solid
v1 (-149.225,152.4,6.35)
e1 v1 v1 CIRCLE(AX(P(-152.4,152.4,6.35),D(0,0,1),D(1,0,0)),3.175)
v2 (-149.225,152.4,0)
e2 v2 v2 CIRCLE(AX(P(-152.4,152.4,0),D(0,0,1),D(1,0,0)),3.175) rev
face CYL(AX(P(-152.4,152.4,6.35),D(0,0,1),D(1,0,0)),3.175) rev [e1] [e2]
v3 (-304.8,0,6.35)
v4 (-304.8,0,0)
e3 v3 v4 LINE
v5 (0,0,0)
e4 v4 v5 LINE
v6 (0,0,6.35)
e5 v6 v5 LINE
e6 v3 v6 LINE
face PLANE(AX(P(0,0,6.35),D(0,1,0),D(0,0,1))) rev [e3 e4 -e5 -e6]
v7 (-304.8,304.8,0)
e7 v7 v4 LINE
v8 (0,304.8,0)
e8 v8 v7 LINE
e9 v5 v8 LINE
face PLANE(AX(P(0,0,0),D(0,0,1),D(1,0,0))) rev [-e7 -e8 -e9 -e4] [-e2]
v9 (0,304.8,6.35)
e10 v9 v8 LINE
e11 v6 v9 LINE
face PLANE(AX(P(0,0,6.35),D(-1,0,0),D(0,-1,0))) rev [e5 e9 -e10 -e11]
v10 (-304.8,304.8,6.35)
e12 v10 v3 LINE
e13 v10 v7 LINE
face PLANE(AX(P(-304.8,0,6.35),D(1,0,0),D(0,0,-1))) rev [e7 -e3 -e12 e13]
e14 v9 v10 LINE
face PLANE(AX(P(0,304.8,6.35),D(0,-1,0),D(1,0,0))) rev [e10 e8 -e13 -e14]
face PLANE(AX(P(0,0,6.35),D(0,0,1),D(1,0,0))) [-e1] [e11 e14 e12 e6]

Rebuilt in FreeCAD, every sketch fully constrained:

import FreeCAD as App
import Part
import Sketcher
from FreeCAD import Vector
Q = App.Units.Quantity


def add_polygon(sketch, points):
    """Adds a closed chain of lines whose ends are joined by coincident constraints."""
    first, n = sketch.GeometryCount, len(points)
    for a, b in zip(points, points[1:] + points[:1]):
        sketch.addGeometry(Part.LineSegment(App.Vector(*a, 0), App.Vector(*b, 0)), False)
    for i in range(n):
        sketch.addConstraint(Sketcher.Constraint("Coincident", first + i, 2, first + (i + 1) % n, 1))

doc = App.newDocument("Part")
body = doc.addObject("PartDesign::Body", "Body")

sketch1 = doc.addObject("Sketcher::SketchObject", "Sketch")
body.addObject(sketch1)
sketch1.AttachmentSupport = (doc.XY_Plane, [""])
sketch1.MapMode = "FlatFace"
add_polygon(sketch1, [(-304.8, 304.8), (-304.8, 0), (0, 0), (0, 304.8)])
sketch1.addConstraint([
    Sketcher.Constraint("Vertical", 0),
    Sketcher.Constraint("Horizontal", 1),
    Sketcher.Constraint("Vertical", 2),
    Sketcher.Constraint("Horizontal", 3),
    Sketcher.Constraint("Coincident", 1, 2, -1, 1),
    Sketcher.Constraint("Equal", 3, 0),
    Sketcher.Constraint("DistanceX", 1, 1, 1, 2, Q("12 in")),
])
pad1 = doc.addObject("PartDesign::Pad", "Pad")
body.addObject(pad1)
pad1.Profile = sketch1
pad1.Length = Q("0.25 in")

sketch2 = doc.addObject("Sketcher::SketchObject", "Sketch001")
body.addObject(sketch2)
sketch2.AttachmentSupport = (doc.XY_Plane, [""])
sketch2.MapMode = "FlatFace"
sketch2.AttachmentOffset = App.Placement(Vector(0, 0, 0.25 * 25.4), App.Rotation())
sketch2.addGeometry(Part.Circle(Vector(-152.4, 152.4, 0), Vector(0, 0, 1), 3.175), False)
sketch2.addConstraint([
    Sketcher.Constraint("Diameter", 0, Q("0.25 in")),
    Sketcher.Constraint("DistanceX", 0, 3, -1, 1, Q("6 in")),
    Sketcher.Constraint("DistanceY", -1, 1, 0, 3, Q("6 in")),
])
doc.recompute()
hole = doc.addObject("PartDesign::Hole", "Hole")
body.addObject(hole)
hole.Profile = sketch2
hole.ThreadType = "None"
hole.Diameter = Q("0.25 in")
hole.DepthType = "ThroughAll"

doc.recompute()
